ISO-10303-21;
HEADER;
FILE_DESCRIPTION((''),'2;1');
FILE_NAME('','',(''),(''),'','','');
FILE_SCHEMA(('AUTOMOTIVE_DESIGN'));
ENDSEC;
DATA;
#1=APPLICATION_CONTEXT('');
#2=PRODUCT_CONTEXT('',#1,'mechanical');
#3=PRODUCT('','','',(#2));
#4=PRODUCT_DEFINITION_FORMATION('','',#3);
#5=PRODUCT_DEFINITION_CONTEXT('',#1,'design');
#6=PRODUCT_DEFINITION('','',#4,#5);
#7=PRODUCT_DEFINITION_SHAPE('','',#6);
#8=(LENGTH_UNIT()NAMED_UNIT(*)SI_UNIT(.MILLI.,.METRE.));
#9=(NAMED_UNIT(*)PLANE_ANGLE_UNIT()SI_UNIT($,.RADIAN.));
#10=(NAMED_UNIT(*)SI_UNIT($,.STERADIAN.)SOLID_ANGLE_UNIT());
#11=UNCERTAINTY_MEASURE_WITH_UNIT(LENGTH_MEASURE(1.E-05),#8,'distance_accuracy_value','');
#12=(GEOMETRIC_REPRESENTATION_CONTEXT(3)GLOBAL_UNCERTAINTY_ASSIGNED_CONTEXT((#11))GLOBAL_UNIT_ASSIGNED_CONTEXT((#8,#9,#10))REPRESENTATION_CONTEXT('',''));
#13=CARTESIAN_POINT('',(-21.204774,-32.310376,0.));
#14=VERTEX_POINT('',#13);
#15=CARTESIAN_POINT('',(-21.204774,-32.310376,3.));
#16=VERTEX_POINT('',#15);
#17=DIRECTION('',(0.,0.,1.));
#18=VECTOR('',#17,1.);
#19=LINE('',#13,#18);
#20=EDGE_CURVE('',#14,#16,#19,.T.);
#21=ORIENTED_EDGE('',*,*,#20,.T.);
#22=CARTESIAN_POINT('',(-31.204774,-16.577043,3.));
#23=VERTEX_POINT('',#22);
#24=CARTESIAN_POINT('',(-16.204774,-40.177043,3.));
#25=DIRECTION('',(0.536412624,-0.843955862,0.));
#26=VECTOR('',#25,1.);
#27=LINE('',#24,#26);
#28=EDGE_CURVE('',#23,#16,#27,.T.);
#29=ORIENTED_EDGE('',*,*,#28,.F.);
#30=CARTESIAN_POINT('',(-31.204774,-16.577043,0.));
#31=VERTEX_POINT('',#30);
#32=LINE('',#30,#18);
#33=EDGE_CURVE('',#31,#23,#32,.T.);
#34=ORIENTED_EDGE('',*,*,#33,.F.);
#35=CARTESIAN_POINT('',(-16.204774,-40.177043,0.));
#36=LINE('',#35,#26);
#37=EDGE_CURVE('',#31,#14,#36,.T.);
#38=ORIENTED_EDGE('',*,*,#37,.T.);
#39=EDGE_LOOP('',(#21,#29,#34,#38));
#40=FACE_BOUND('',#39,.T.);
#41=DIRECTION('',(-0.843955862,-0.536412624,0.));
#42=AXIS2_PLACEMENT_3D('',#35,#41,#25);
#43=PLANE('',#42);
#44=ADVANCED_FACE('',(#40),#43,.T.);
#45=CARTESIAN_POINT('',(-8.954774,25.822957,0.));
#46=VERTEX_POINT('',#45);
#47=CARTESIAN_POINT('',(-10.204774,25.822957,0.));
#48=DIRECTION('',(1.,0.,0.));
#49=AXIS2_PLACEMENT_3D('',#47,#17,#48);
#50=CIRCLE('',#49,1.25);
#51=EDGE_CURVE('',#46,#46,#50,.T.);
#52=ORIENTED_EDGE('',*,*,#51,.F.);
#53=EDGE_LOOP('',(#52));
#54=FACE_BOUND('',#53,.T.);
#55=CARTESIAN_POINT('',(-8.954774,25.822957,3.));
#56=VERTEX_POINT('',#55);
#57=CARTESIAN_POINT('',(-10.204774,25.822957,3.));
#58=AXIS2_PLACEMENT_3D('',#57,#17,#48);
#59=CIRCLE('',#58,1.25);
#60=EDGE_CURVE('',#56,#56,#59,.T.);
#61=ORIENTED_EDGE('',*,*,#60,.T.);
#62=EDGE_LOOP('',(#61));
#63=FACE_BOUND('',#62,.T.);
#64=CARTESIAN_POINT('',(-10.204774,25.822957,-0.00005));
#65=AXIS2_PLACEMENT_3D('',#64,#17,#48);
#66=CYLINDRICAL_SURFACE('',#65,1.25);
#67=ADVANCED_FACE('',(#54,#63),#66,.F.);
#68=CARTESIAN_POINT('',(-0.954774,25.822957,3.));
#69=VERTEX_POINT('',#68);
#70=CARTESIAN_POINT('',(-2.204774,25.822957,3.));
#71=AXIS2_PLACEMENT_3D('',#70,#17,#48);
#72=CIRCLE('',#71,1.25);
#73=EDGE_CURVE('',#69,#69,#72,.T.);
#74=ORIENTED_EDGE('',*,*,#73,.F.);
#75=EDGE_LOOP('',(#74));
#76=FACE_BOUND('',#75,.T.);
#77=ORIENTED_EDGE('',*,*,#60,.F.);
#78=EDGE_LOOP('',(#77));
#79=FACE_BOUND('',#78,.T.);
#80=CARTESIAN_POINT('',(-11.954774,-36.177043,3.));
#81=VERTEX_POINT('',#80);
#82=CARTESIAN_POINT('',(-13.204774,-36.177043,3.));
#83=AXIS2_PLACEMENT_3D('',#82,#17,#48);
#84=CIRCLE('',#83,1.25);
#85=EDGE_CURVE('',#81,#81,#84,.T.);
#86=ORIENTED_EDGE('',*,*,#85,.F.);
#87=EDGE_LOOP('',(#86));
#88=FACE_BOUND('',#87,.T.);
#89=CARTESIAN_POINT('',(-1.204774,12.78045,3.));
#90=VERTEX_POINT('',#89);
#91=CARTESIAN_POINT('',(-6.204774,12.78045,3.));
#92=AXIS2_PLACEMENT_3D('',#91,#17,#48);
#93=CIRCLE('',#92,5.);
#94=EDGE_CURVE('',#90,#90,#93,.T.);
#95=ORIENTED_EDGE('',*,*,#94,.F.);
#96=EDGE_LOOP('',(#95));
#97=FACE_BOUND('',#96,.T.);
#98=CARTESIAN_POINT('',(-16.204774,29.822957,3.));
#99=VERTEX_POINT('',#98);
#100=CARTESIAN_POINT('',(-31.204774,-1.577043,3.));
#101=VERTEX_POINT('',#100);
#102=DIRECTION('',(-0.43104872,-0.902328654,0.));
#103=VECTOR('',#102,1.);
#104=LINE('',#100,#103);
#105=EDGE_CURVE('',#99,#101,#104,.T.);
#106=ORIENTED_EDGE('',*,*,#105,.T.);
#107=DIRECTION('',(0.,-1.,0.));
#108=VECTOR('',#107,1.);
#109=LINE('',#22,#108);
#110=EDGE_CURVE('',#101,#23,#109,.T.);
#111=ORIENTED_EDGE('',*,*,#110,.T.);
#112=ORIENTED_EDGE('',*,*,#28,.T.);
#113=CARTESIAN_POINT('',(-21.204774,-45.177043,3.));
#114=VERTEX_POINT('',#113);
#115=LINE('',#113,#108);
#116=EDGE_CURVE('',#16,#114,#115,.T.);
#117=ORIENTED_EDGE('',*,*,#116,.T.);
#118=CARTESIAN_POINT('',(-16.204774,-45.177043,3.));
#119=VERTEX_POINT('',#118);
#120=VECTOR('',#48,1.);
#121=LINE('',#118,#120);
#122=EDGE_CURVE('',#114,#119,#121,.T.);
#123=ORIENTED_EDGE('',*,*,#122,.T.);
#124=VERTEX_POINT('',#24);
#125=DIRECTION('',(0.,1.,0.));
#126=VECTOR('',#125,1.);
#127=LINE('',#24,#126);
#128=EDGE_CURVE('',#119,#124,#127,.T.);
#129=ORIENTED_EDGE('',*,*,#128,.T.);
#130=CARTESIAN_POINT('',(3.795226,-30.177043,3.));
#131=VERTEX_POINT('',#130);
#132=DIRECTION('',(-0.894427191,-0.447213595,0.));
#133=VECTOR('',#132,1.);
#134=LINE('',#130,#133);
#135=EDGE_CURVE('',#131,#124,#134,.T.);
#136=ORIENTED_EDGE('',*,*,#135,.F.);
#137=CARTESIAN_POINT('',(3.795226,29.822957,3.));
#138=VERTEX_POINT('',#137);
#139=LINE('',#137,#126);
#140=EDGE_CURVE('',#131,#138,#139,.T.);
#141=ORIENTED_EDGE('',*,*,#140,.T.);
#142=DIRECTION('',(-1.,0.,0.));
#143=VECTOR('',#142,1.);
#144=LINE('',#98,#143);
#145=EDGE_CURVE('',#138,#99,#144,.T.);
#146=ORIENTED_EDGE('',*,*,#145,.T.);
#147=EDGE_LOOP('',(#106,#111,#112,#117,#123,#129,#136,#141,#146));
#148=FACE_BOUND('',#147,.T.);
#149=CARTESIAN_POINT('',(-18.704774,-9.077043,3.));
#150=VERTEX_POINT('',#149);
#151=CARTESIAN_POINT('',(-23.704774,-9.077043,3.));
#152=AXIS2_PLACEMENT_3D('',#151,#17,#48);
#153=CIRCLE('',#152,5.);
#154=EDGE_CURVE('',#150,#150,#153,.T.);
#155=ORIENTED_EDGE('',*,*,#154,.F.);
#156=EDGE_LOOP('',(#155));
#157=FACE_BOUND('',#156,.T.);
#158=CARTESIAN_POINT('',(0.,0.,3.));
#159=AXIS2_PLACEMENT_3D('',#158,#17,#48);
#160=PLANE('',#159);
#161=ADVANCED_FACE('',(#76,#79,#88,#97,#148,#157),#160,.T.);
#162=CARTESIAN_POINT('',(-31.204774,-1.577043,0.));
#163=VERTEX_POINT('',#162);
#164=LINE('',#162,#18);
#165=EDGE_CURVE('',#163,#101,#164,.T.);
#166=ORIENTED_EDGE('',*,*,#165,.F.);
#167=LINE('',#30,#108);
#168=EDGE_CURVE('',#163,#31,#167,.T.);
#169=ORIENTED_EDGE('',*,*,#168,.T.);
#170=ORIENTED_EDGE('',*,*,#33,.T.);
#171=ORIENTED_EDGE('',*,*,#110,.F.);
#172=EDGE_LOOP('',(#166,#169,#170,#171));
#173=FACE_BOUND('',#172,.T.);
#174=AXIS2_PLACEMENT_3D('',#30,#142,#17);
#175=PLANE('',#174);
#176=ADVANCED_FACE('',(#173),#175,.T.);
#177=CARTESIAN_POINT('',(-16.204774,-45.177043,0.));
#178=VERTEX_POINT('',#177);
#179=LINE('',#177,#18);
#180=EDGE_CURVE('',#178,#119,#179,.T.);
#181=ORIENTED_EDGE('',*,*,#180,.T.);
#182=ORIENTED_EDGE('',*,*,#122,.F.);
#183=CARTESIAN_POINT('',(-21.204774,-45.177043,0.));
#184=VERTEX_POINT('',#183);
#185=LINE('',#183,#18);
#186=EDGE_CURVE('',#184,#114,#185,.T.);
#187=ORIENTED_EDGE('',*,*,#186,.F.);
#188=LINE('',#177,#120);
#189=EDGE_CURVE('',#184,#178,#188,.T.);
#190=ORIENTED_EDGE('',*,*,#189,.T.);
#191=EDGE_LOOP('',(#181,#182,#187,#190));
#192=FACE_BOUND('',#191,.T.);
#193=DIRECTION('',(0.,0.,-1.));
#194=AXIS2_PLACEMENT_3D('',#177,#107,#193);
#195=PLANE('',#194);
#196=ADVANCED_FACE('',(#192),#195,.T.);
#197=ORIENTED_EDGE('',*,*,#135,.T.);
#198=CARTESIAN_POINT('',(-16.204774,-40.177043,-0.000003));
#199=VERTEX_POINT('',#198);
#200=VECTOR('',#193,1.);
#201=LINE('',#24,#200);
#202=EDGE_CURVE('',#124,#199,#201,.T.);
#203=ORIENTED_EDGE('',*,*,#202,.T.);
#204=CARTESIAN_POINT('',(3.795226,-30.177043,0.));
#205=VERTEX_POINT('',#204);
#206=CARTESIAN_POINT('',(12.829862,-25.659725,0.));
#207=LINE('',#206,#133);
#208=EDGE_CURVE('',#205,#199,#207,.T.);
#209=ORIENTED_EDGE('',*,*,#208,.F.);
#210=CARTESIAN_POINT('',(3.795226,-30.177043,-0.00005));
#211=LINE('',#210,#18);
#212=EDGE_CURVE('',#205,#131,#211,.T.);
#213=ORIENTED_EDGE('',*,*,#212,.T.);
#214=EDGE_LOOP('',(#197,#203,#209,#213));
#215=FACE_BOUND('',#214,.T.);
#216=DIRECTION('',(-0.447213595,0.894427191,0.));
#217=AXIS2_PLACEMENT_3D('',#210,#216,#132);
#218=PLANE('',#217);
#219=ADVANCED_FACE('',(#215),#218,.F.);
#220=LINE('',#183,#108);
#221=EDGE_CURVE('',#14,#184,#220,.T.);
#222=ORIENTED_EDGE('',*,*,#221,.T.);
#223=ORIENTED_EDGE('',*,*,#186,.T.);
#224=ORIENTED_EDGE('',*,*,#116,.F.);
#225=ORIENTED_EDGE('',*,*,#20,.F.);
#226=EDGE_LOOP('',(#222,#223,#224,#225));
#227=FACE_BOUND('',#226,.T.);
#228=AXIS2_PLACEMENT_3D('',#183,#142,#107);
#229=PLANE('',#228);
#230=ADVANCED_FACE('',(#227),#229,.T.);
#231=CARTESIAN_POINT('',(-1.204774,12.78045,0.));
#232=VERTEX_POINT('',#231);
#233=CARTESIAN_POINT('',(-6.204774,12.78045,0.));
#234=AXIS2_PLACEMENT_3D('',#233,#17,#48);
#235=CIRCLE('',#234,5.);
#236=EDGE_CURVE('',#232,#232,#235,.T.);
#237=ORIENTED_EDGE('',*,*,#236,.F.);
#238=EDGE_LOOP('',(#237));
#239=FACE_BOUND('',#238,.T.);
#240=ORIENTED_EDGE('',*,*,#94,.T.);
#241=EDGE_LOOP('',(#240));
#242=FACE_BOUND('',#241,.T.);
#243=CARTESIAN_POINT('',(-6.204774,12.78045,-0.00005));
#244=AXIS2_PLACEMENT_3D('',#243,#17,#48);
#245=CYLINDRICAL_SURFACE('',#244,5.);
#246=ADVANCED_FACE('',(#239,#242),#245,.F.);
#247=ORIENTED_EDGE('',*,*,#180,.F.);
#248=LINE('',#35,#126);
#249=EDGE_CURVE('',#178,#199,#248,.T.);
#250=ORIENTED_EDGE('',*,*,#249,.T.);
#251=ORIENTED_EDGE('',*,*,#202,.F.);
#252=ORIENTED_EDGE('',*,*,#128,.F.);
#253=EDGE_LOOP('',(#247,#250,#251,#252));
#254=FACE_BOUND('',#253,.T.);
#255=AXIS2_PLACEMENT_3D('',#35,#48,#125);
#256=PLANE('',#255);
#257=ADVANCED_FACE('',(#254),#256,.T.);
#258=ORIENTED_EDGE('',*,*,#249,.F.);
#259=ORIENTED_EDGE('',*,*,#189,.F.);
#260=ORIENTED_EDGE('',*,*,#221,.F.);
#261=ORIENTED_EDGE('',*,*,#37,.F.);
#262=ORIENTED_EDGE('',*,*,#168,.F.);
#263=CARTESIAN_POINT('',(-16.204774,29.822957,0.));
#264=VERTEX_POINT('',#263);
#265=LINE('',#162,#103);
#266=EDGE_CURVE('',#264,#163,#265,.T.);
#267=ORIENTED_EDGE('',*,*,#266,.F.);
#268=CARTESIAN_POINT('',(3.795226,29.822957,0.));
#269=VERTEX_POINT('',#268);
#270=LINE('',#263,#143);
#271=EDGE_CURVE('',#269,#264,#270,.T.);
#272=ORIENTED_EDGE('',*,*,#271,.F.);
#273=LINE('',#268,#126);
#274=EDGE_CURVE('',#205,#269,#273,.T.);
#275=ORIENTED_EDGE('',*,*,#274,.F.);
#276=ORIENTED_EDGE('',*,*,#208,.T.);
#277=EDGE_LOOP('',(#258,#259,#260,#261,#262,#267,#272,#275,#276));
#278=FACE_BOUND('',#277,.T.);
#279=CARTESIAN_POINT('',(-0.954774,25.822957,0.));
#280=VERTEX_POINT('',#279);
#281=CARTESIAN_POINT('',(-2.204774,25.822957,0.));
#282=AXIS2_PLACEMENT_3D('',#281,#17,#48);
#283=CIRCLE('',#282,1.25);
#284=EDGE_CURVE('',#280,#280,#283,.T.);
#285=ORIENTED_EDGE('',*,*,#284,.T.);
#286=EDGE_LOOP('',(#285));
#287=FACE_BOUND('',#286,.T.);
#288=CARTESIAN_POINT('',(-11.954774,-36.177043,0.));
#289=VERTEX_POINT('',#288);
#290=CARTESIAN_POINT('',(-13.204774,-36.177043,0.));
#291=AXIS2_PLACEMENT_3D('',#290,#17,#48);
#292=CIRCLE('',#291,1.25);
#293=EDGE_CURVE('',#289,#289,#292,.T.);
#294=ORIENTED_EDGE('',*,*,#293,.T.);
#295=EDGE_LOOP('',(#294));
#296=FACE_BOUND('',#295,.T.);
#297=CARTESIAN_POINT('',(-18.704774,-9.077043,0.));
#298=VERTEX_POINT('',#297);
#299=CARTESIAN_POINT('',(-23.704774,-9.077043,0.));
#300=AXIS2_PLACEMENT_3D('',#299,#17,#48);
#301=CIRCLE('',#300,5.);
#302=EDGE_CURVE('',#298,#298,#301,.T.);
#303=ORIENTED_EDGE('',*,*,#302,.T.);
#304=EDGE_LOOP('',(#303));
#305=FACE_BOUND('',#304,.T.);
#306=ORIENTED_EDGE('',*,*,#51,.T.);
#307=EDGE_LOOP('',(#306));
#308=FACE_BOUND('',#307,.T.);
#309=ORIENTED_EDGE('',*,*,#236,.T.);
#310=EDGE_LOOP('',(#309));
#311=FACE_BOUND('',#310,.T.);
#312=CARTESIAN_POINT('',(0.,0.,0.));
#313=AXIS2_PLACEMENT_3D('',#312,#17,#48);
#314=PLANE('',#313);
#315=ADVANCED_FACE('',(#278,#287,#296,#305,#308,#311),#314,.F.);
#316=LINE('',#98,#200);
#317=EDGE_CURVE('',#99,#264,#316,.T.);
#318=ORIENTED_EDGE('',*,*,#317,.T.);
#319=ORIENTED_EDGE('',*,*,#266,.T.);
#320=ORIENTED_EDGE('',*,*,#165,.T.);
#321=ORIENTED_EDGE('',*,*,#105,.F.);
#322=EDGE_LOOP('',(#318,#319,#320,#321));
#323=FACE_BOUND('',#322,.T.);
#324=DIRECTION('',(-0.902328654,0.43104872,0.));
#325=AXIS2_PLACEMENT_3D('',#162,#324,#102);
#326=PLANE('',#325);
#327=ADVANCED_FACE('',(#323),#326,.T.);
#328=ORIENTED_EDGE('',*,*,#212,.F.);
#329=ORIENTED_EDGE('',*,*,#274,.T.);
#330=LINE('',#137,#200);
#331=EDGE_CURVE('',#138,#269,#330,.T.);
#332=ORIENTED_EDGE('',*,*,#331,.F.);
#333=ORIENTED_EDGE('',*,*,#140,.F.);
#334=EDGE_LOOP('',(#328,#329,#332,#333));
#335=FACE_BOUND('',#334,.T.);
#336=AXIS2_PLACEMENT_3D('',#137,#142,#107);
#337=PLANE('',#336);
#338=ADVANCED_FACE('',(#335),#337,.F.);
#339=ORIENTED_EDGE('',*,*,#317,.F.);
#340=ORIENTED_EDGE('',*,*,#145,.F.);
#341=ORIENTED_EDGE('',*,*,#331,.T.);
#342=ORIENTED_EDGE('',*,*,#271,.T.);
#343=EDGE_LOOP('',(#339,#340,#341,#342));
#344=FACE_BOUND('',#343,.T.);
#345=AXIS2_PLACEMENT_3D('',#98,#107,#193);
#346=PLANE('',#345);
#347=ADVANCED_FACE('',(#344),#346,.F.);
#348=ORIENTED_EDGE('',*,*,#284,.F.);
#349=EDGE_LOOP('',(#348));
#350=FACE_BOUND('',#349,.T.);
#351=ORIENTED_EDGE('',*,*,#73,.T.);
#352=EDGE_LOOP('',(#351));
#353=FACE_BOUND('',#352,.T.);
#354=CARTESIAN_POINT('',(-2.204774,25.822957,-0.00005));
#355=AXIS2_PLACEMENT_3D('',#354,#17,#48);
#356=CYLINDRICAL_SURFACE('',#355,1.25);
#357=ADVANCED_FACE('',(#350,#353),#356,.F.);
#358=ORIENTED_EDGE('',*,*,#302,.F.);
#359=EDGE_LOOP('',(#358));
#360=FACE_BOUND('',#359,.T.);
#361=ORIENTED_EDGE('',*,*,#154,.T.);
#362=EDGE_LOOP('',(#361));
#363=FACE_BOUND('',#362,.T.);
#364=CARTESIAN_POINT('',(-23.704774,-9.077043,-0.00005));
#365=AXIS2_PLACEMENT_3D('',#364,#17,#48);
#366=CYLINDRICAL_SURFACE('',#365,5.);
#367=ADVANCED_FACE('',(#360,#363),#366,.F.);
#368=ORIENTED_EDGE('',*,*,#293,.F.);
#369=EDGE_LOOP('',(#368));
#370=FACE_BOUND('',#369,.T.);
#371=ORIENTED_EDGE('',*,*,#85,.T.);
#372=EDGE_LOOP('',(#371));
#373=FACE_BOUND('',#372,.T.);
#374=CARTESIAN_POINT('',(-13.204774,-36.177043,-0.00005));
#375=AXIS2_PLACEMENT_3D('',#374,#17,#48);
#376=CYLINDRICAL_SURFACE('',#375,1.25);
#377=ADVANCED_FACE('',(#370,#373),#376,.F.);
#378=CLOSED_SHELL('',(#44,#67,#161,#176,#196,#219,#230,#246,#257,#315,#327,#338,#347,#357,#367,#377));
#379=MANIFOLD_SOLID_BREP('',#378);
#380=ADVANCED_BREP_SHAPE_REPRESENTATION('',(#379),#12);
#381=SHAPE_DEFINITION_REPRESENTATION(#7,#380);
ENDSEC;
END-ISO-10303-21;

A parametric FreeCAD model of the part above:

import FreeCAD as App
import Part
import Sketcher
from FreeCAD import Vector

doc = App.newDocument("Part")
body = doc.addObject("PartDesign::Body", "Body")

sketch1 = doc.addObject("Sketcher::SketchObject", "Sketch")
body.addObject(sketch1)
sketch1.AttachmentSupport = (doc.XY_Plane, [""])
sketch1.MapMode = "FlatFace"
sketch1.addGeometry([
    Part.LineSegment(Vector(-16.204774, 29.822957, 0), Vector(-16.204774, -40.177043, 0)),
    Part.LineSegment(Vector(-16.204774, -40.177043, 0), Vector(3.795226, -40.177043, 0)),
    Part.LineSegment(Vector(3.795226, -40.177043, 0), Vector(3.795226, 29.822957, 0)),
    Part.LineSegment(Vector(3.795226, 29.822957, 0), Vector(-16.204774, 29.822957, 0)),
], False)
sketch1.addConstraint([
    Sketcher.Constraint("Coincident", 0, 2, 1, 1),
    Sketcher.Constraint("Coincident", 1, 2, 2, 1),
    Sketcher.Constraint("Coincident", 2, 2, 3, 1),
    Sketcher.Constraint("Coincident", 3, 2, 0, 1),
    Sketcher.Constraint("Vertical", 0),
    Sketcher.Constraint("Horizontal", 1),
    Sketcher.Constraint("Vertical", 2),
    Sketcher.Constraint("Horizontal", 3),
    Sketcher.Constraint("DistanceX", 1, 1, 1, 2, 20.0),
    Sketcher.Constraint("DistanceY", 0, 2, 0, 1, 70.0),
    Sketcher.Constraint("DistanceX", 0, 2, -1, 1, 16.204774),
    Sketcher.Constraint("DistanceY", 0, 2, -1, 1, 40.177043),
])
pad1 = doc.addObject("PartDesign::Pad", "Pad")
body.addObject(pad1)
pad1.Profile = sketch1
pad1.Length = 3

sketch2 = doc.addObject("Sketcher::SketchObject", "Sketch001")
body.addObject(sketch2)
sketch2.AttachmentSupport = (doc.XY_Plane, [""])
sketch2.MapMode = "FlatFace"
sketch2.AttachmentOffset = App.Placement(Vector(0, 0, 3), App.Rotation())
sketch2.addGeometry([
    Part.LineSegment(Vector(-31.204774, -1.577043, 0), Vector(-31.204774, -16.577043, 0)),
    Part.LineSegment(Vector(-31.204774, -16.577043, 0), Vector(-16.204774, -16.577043, 0)),
    Part.LineSegment(Vector(-16.204774, -16.577043, 0), Vector(-16.204774, -1.577043, 0)),
    Part.LineSegment(Vector(-16.204774, -1.577043, 0), Vector(-31.204774, -1.577043, 0)),
], False)
sketch2.addConstraint([
    Sketcher.Constraint("Coincident", 0, 2, 1, 1),
    Sketcher.Constraint("Coincident", 1, 2, 2, 1),
    Sketcher.Constraint("Coincident", 2, 2, 3, 1),
    Sketcher.Constraint("Coincident", 3, 2, 0, 1),
    Sketcher.Constraint("Vertical", 0),
    Sketcher.Constraint("Horizontal", 1),
    Sketcher.Constraint("Vertical", 2),
    Sketcher.Constraint("Horizontal", 3),
    Sketcher.Constraint("Equal", 3, 0),
    Sketcher.Constraint("DistanceX", 1, 1, 1, 2, 15.0),
    Sketcher.Constraint("DistanceX", 0, 2, -1, 1, 31.204774),
    Sketcher.Constraint("DistanceY", 0, 2, -1, 1, 16.577043),
])
pad2 = doc.addObject("PartDesign::Pad", "Pad001")
body.addObject(pad2)
pad2.Profile = sketch2
pad2.Length = 3
pad2.Reversed = True

sketch3 = doc.addObject("Sketcher::SketchObject", "Sketch002")
body.addObject(sketch3)
sketch3.AttachmentSupport = (doc.XY_Plane, [""])
sketch3.MapMode = "FlatFace"
sketch3.AttachmentOffset = App.Placement(Vector(0, 0, 3), App.Rotation())
sketch3.addGeometry([
    Part.LineSegment(Vector(-16.204774, 29.822957, 0), Vector(-31.204774, -1.577043, 0)),
    Part.LineSegment(Vector(-31.204774, -1.577043, 0), Vector(-16.204774, -1.577043, 0)),
    Part.LineSegment(Vector(-16.204774, -1.577043, 0), Vector(-16.204774, 29.822957, 0)),
    Part.LineSegment(Vector(-16.204774, -16.577043, 0), Vector(-31.204774, -16.577043, 0)),
    Part.LineSegment(Vector(-31.204774, -16.577043, 0), Vector(-16.204774, -40.177043, 0)),
    Part.LineSegment(Vector(-16.204774, -40.177043, 0), Vector(-16.204774, -16.577043, 0)),
], False)
sketch3.addConstraint([
    Sketcher.Constraint("Coincident", 0, 2, 1, 1),
    Sketcher.Constraint("Coincident", 1, 2, 2, 1),
    Sketcher.Constraint("Coincident", 2, 2, 0, 1),
    Sketcher.Constraint("Coincident", 3, 2, 4, 1),
    Sketcher.Constraint("Coincident", 4, 2, 5, 1),
    Sketcher.Constraint("Coincident", 5, 2, 3, 1),
    Sketcher.Constraint("Horizontal", 1),
    Sketcher.Constraint("Vertical", 2),
    Sketcher.Constraint("Horizontal", 3),
    Sketcher.Constraint("Vertical", 5),
    Sketcher.Constraint("Vertical", 0, 2, 3, 2),
    Sketcher.Constraint("Vertical", 2, 2, 4, 2),
    Sketcher.Constraint("DistanceX", 1, 1, 1, 2, 15.0),
    Sketcher.Constraint("DistanceY", 2, 1, 2, 2, 31.4),
    Sketcher.Constraint("DistanceY", 5, 1, 5, 2, 23.6),
    Sketcher.Constraint("DistanceY", 3, 2, 0, 2, 15.0),
    Sketcher.Constraint("DistanceX", 0, 2, -1, 1, 31.204774),
    Sketcher.Constraint("DistanceY", 0, 2, -1, 1, 1.577043),
])
pad3 = doc.addObject("PartDesign::Pad", "Pad002")
body.addObject(pad3)
pad3.Profile = sketch3
pad3.Length = 3
pad3.Reversed = True

sketch4 = doc.addObject("Sketcher::SketchObject", "Sketch003")
body.addObject(sketch4)
sketch4.AttachmentSupport = (doc.XY_Plane, [""])
sketch4.MapMode = "FlatFace"
sketch4.AttachmentOffset = App.Placement(Vector(0, 0, 3), App.Rotation())
sketch4.addGeometry([
    Part.LineSegment(Vector(-16.204774, -45.177043, 0), Vector(-16.204774, -40.177043, 0)),
    Part.LineSegment(Vector(-16.204774, -40.177043, 0), Vector(-21.204774, -32.310376, 0)),
    Part.LineSegment(Vector(-21.204774, -32.310376, 0), Vector(-21.204774, -45.177043, 0)),
    Part.LineSegment(Vector(-21.204774, -45.177043, 0), Vector(-16.204774, -45.177043, 0)),
], False)
sketch4.addConstraint([
    Sketcher.Constraint("Coincident", 0, 2, 1, 1),
    Sketcher.Constraint("Coincident", 1, 2, 2, 1),
    Sketcher.Constraint("Coincident", 2, 2, 3, 1),
    Sketcher.Constraint("Coincident", 3, 2, 0, 1),
    Sketcher.Constraint("Vertical", 0),
    Sketcher.Constraint("Vertical", 2),
    Sketcher.Constraint("Horizontal", 3),
    Sketcher.Constraint("Equal", 3, 0),
    Sketcher.Constraint("DistanceX", 3, 1, 3, 2, 5.0),
    Sketcher.Constraint("DistanceY", 2, 2, 2, 1, 12.866667),
    Sketcher.Constraint("DistanceX", 0, 2, -1, 1, 16.204774),
    Sketcher.Constraint("DistanceY", 0, 2, -1, 1, 40.177043),
])
pad4 = doc.addObject("PartDesign::Pad", "Pad003")
body.addObject(pad4)
pad4.Profile = sketch4
pad4.Length = 3
pad4.Reversed = True

sketch5 = doc.addObject("Sketcher::SketchObject", "Sketch004")
body.addObject(sketch5)
sketch5.AttachmentSupport = (doc.XY_Plane, [""])
sketch5.MapMode = "FlatFace"
sketch5.AttachmentOffset = App.Placement(Vector(0, 0, 3), App.Rotation())
sketch5.addGeometry([
    Part.Circle(Vector(-23.704774, -9.077043, 0), Vector(0, 0, 1), 5),
    Part.Circle(Vector(-13.204774, -36.177043, 0), Vector(0, 0, 1), 1.25),
    Part.Circle(Vector(-6.204774, 12.78045, 0), Vector(0, 0, 1), 5),
    Part.Circle(Vector(-10.204774, 25.822957, 0), Vector(0, 0, 1), 1.25),
    Part.Circle(Vector(-2.204774, 25.822957, 0), Vector(0, 0, 1), 1.25),
    Part.LineSegment(Vector(3.795226, -40.177043, 0), Vector(3.795226, -30.177043, 0)),
    Part.LineSegment(Vector(3.795226, -30.177043, 0), Vector(-16.204774, -40.177043, 0)),
    Part.LineSegment(Vector(-16.204774, -40.177043, 0), Vector(3.795226, -40.177043, 0)),
], False)
sketch5.addConstraint([
    Sketcher.Constraint("Coincident", 5, 2, 6, 1),
    Sketcher.Constraint("Coincident", 6, 2, 7, 1),
    Sketcher.Constraint("Coincident", 7, 2, 5, 1),
    Sketcher.Constraint("Vertical", 5),
    Sketcher.Constraint("Horizontal", 7),
    Sketcher.Constraint("Equal", 0, 2),
    Sketcher.Constraint("Equal", 1, 3),
    Sketcher.Constraint("Equal", 3, 4),
    Sketcher.Constraint("Horizontal", 3, 3, 4, 3),
    Sketcher.Constraint("Diameter", 0, 10.0),
    Sketcher.Constraint("Diameter", 1, 2.5),
    Sketcher.Constraint("DistanceX", 7, 1, 7, 2, 20.0),
    Sketcher.Constraint("DistanceY", 5, 1, 5, 2, 10.0),
    Sketcher.Constraint("DistanceX", 1, 3, 2, 3, 7.0),
    Sketcher.Constraint("DistanceX", 3, 3, 2, 3, 4.0),
    Sketcher.Constraint("DistanceY", 1, 3, 3, 3, 62.0),
    Sketcher.Constraint("DistanceX", 3, 3, 4, 3, 8.0),
    Sketcher.Constraint("DistanceX", 1, 3, 5, 2, 17.0),
    Sketcher.Constraint("DistanceY", 1, 3, 5, 2, 6.0),
    Sketcher.Constraint("DistanceX", 0, 3, 1, 3, 10.5),
    Sketcher.Constraint("DistanceY", 1, 3, 0, 3, 27.1),
    Sketcher.Constraint("DistanceY", -1, 1, 2, 3, 12.78045),
    Sketcher.Constraint("DistanceX", 0, 3, -1, 1, 23.704774),
    Sketcher.Constraint("DistanceY", 0, 3, -1, 1, 9.077043),
])
pocket1 = doc.addObject("PartDesign::Pocket", "Pocket")
body.addObject(pocket1)
pocket1.Profile = sketch5
pocket1.Type = "ThroughAll"

doc.recompute()
